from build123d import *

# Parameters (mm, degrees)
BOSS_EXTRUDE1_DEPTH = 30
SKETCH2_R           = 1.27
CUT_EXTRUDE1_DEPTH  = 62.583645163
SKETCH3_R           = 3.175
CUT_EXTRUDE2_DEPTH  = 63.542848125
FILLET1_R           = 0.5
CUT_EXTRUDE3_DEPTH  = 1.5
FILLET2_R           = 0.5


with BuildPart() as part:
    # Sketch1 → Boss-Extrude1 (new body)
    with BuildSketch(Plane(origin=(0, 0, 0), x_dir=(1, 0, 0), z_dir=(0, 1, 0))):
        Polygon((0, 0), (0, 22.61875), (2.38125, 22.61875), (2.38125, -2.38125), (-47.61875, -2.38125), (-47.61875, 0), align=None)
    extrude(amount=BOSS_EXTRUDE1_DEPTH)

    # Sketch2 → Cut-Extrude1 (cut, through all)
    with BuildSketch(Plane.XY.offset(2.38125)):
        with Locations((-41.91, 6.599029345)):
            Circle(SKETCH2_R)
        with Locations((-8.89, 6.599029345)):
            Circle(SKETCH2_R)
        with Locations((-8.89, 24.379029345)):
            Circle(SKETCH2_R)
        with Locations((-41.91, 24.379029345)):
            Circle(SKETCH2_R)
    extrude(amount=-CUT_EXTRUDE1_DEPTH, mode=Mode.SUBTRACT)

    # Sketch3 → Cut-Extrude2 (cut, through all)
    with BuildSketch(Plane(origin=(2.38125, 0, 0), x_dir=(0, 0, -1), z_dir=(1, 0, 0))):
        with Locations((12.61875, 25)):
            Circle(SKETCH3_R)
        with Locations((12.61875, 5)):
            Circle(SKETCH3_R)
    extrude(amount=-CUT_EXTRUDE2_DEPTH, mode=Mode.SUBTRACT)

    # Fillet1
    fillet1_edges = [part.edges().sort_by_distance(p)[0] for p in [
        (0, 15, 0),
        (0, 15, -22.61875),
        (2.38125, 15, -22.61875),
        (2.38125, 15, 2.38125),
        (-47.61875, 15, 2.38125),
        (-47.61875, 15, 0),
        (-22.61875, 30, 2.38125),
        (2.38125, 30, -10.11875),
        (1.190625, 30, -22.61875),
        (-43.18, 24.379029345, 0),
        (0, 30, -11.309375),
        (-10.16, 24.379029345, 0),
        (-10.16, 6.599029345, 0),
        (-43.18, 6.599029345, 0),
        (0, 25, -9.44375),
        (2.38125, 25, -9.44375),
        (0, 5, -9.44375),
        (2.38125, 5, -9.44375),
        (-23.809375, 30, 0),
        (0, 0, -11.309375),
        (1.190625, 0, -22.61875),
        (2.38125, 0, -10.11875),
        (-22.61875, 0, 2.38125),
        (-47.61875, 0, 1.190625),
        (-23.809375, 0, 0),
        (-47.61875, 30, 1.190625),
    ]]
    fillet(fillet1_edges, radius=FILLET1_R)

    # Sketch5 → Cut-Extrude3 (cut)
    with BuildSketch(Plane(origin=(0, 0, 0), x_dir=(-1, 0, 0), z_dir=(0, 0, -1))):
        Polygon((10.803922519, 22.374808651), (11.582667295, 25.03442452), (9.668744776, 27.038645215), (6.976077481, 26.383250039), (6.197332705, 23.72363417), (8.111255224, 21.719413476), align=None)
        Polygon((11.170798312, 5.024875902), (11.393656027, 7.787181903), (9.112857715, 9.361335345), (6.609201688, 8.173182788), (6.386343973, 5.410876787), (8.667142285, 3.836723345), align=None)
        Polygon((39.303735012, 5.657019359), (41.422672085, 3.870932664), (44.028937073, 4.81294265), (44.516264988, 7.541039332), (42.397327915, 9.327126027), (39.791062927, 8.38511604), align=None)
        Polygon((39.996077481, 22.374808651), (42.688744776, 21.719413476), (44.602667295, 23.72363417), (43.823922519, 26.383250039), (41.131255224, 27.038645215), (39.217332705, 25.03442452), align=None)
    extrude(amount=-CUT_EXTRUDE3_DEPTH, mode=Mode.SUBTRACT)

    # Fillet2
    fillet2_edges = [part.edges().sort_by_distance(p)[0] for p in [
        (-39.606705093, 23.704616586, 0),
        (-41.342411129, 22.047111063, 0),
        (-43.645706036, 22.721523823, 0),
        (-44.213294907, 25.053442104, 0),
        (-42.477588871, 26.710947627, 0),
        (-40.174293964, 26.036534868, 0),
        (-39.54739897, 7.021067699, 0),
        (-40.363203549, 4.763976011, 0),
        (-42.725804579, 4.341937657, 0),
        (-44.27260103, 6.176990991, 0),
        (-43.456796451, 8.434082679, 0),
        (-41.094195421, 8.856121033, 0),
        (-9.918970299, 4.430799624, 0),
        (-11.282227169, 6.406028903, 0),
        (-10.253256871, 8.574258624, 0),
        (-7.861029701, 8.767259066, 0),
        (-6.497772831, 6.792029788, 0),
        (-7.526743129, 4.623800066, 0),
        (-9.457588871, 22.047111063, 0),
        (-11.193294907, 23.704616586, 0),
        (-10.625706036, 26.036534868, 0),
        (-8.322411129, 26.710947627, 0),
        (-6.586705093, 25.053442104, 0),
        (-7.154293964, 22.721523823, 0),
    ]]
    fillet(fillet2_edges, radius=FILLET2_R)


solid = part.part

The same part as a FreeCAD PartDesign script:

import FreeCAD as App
import Part
import Sketcher

V = App.Vector


def edges_at(feature, points):
    """Names of the edges that pass closest to the given points."""
    edges = feature.Shape.Edges
    near = lambda p: min(range(len(edges)), key=lambda i: edges[i].distToShape(Part.Vertex(*p))[0])
    return sorted({f"Edge{near(p) + 1}" for p in points})


def add_polygon(sketch, points):
    """Adds a closed chain of lines whose ends are joined by coincident constraints."""
    first, n = sketch.GeometryCount, len(points)
    for a, b in zip(points, points[1:] + points[:1]):
        sketch.addGeometry(Part.LineSegment(App.Vector(*a, 0), App.Vector(*b, 0)), False)
    for i in range(n):
        sketch.addConstraint(Sketcher.Constraint("Coincident", first + i, 2, first + (i + 1) % n, 1))

doc = App.newDocument("Part")
params = doc.addObject("Spreadsheet::Sheet", "Params")
for row, (alias, value) in enumerate([
    ("sketch1_width", "50 mm"),
    ("sketch1_height", "25 mm"),
    ("pad1_length", "30 mm"),
    ("sketch2_diameter", "2.54 mm"),
    ("sketch3_diameter", "6.35 mm"),
    ("fillet_radius", "0.5 mm"),
    ("pocket3_length", "1.5 mm"),
    ("fillet2_radius", "0.5 mm"),
], start=1):
    params.set(f"A{row}", alias)
    params.set(f"B{row}", "=" + value)
    params.setAlias(f"B{row}", alias)

body = doc.addObject("PartDesign::Body", "Body")

sketch1 = doc.addObject("Sketcher::SketchObject", "Sketch")
body.addObject(sketch1)
sketch1.AttachmentSupport = (doc.XZ_Plane, [""])
sketch1.MapMode = "FlatFace"
add_polygon(sketch1, [(0, -22.6), (0, 0), (-47.6, 0), (-47.6, 2.4), (2.4, 2.4), (2.4, -22.6)])
sketch1.addConstraint(Sketcher.Constraint("Vertical", 0))
sketch1.addConstraint(Sketcher.Constraint("Horizontal", 1))
sketch1.addConstraint(Sketcher.Constraint("Vertical", 2))
sketch1.addConstraint(Sketcher.Constraint("Horizontal", 3))
sketch1.addConstraint(Sketcher.Constraint("Vertical", 4))
sketch1.addConstraint(Sketcher.Constraint("Horizontal", 5))
sketch1.addConstraint(Sketcher.Constraint("Coincident", 0, 2, -1, 1))
sketch1.addConstraint(Sketcher.Constraint("Equal", 5, 2))
sketch1.addConstraint(Sketcher.Constraint("DistanceX", 3, 1, 3, 2, 50.0))
sketch1.addConstraint(Sketcher.Constraint("DistanceY", 4, 2, 4, 1, 25.0))
sketch1.addConstraint(Sketcher.Constraint("DistanceX", 1, 2, 1, 1, 47.61875))
sketch1.setExpression("Constraints[14]", "Params.sketch1_width")
sketch1.setExpression("Constraints[15]", "Params.sketch1_height")
pad1 = doc.addObject("PartDesign::Pad", "Pad")
body.addObject(pad1)
pad1.Profile = sketch1
pad1.setExpression("Length", "Params.pad1_length")
pad1.Reversed = True

sketch2 = doc.addObject("Sketcher::SketchObject", "Sketch001")
body.addObject(sketch2)
sketch2.AttachmentSupport = (doc.XY_Plane, [""])
sketch2.MapMode = "FlatFace"
sketch2.AttachmentOffset = App.Placement(V(0, 0, 2.38125), App.Rotation())
sketch2.addGeometry(Part.Circle(V(-41.9, 6.6, 0), V(0, 0, 1), 1.3), False)
sketch2.addGeometry(Part.Circle(V(-8.9, 6.6, 0), V(0, 0, 1), 1.3), False)
sketch2.addGeometry(Part.Circle(V(-8.9, 24.4, 0), V(0, 0, 1), 1.3), False)
sketch2.addGeometry(Part.Circle(V(-41.9, 24.4, 0), V(0, 0, 1), 1.3), False)
sketch2.addConstraint(Sketcher.Constraint("Equal", 0, 1))
sketch2.addConstraint(Sketcher.Constraint("Equal", 1, 2))
sketch2.addConstraint(Sketcher.Constraint("Equal", 2, 3))
sketch2.addConstraint(Sketcher.Constraint("Horizontal", 0, 3, 1, 3))
sketch2.addConstraint(Sketcher.Constraint("Horizontal", 2, 3, 3, 3))
sketch2.addConstraint(Sketcher.Constraint("Vertical", 1, 3, 2, 3))
sketch2.addConstraint(Sketcher.Constraint("Vertical", 0, 3, 3, 3))
sketch2.addConstraint(Sketcher.Constraint("Diameter", 0, 2.54))
sketch2.addConstraint(Sketcher.Constraint("DistanceX", 0, 3, -1, 1, 41.91))
sketch2.addConstraint(Sketcher.Constraint("DistanceX", 1, 3, -1, 1, 8.89))
sketch2.addConstraint(Sketcher.Constraint("DistanceY", 1, 3, 2, 3, 17.78))
sketch2.addConstraint(Sketcher.Constraint("DistanceY", -1, 1, 0, 3, 6.599029))
sketch2.setExpression("Constraints[7]", "Params.sketch2_diameter")
pocket1 = doc.addObject("PartDesign::Pocket", "Pocket")
body.addObject(pocket1)
pocket1.Profile = sketch2
pocket1.Type = "ThroughAll"

sketch3 = doc.addObject("Sketcher::SketchObject", "Sketch002")
body.addObject(sketch3)
sketch3.AttachmentSupport = (doc.YZ_Plane, [""])
sketch3.MapMode = "FlatFace"
sketch3.AttachmentOffset = App.Placement(V(0, 0, 2.38125), App.Rotation())
sketch3.addGeometry(Part.Circle(V(25, -12.6, 0), V(0, 0, 1), 3.2), False)
sketch3.addGeometry(Part.Circle(V(5, -12.6, 0), V(0, 0, 1), 3.2), False)
sketch3.addConstraint(Sketcher.Constraint("Equal", 0, 1))
sketch3.addConstraint(Sketcher.Constraint("Horizontal", 0, 3, 1, 3))
sketch3.addConstraint(Sketcher.Constraint("Diameter", 0, 6.35))
sketch3.addConstraint(Sketcher.Constraint("DistanceX", -1, 1, 0, 3, 25.0))
sketch3.addConstraint(Sketcher.Constraint("DistanceX", -1, 1, 1, 3, 5.0))
sketch3.addConstraint(Sketcher.Constraint("DistanceY", 0, 3, -1, 1, 12.61875))
sketch3.setExpression("Constraints[2]", "Params.sketch3_diameter")
pocket2 = doc.addObject("PartDesign::Pocket", "Pocket001")
body.addObject(pocket2)
pocket2.Profile = sketch3
pocket2.Type = "ThroughAll"
doc.recompute()

fillet = doc.addObject("PartDesign::Fillet", "Fillet")
body.addObject(fillet)
fillet.Base = (pocket2, edges_at(pocket2, [
    (0, 15, 0),
    (0, 15, -22.619),
    (2.381, 15, -22.619),
    (2.381, 15, 2.381),
    (-47.619, 15, 2.381),
    (-47.619, 15, 0),
    (-22.619, 30, 2.381),
    (2.381, 30, -10.119),
    (1.191, 30, -22.619),
    (-43.18, 24.379, 0),
    (0, 30, -11.309),
    (-10.16, 24.379, 0),
    (-10.16, 6.599, 0),
    (-43.18, 6.599, 0),
    (0, 25, -9.444),
    (2.381, 25, -9.444),
    (0, 5, -9.444),
    (2.381, 5, -9.444),
    (-23.809, 30, 0),
    (0, 0, -11.309),
    (1.191, 0, -22.619),
    (2.381, 0, -10.119),
    (-22.619, 0, 2.381),
    (-47.619, 0, 1.191),
    (-23.809, 0, 0),
    (-47.619, 30, 1.191),
]))
fillet.setExpression("Radius", "Params.fillet_radius")

sketch4 = doc.addObject("Sketcher::SketchObject", "Sketch003")
body.addObject(sketch4)
sketch4.AttachmentSupport = (doc.XY_Plane, [""])
sketch4.MapMode = "FlatFace"
add_polygon(sketch4, [(-10.8, 22.4), (-11.6, 25), (-9.7, 27), (-7, 26.4), (-6.2, 23.7), (-8.1, 21.7)])
add_polygon(sketch4, [(-11.2, 5), (-11.4, 7.8), (-9.1, 9.4), (-6.6, 8.2), (-6.4, 5.4), (-8.7, 3.8)])
add_polygon(sketch4, [(-39.3, 5.7), (-41.4, 3.9), (-44, 4.8), (-44.5, 7.5), (-42.4, 9.3), (-39.8, 8.4)])
add_polygon(sketch4, [(-40, 22.4), (-42.7, 21.7), (-44.6, 23.7), (-43.8, 26.4), (-41.1, 27), (-39.2, 25)])
sketch4.addConstraint(Sketcher.Constraint("Parallel", 0, 3))
sketch4.addConstraint(Sketcher.Constraint("Parallel", 1, 4))
sketch4.addConstraint(Sketcher.Constraint("Parallel", 2, 5))
sketch4.addConstraint(Sketcher.Constraint("Parallel", 6, 9))
sketch4.addConstraint(Sketcher.Constraint("Parallel", 7, 10))
sketch4.addConstraint(Sketcher.Constraint("Parallel", 8, 11))
sketch4.addConstraint(Sketcher.Constraint("Parallel", 12, 15))
sketch4.addConstraint(Sketcher.Constraint("Parallel", 13, 16))
sketch4.addConstraint(Sketcher.Constraint("Parallel", 14, 17))
sketch4.addConstraint(Sketcher.Constraint("Parallel", 18, 21))
sketch4.addConstraint(Sketcher.Constraint("Parallel", 19, 22))
sketch4.addConstraint(Sketcher.Constraint("Parallel", 20, 23))
sketch4.addConstraint(Sketcher.Constraint("Horizontal", 4, 2, 18, 2))
sketch4.addConstraint(Sketcher.Constraint("Horizontal", 3, 2, 19, 2))
sketch4.addConstraint(Sketcher.Constraint("Horizontal", 2, 2, 20, 2))
sketch4.addConstraint(Sketcher.Constraint("Horizontal", 1, 2, 21, 2))
sketch4.addConstraint(Sketcher.Constraint("Horizontal", 0, 2, 22, 2))
sketch4.addConstraint(Sketcher.Constraint("Equal", 0, 1))
sketch4.addConstraint(Sketcher.Constraint("Equal", 1, 2))
sketch4.addConstraint(Sketcher.Constraint("Equal", 2, 3))
sketch4.addConstraint(Sketcher.Constraint("Equal", 5, 6))
sketch4.addConstraint(Sketcher.Constraint("Equal", 6, 7))
sketch4.addConstraint(Sketcher.Constraint("Equal", 7, 8))
sketch4.addConstraint(Sketcher.Constraint("Equal", 8, 9))
sketch4.addConstraint(Sketcher.Constraint("Equal", 11, 12))
sketch4.addConstraint(Sketcher.Constraint("Equal", 12, 13))
sketch4.addConstraint(Sketcher.Constraint("Equal", 13, 14))
sketch4.addConstraint(Sketcher.Constraint("Equal", 14, 15))
sketch4.addConstraint(Sketcher.Constraint("Equal", 17, 18))
sketch4.addConstraint(Sketcher.Constraint("Equal", 18, 19))
sketch4.addConstraint(Sketcher.Constraint("Equal", 19, 20))
sketch4.addConstraint(Sketcher.Constraint("DistanceY", 6, 2, 8, 2, 0.386001))
sketch4.addConstraint(Sketcher.Constraint("DistanceX", 8, 2, -1, 1, 6.609202))
sketch4.addConstraint(Sketcher.Constraint("DistanceX", 11, 2, -1, 1, 11.170798))
sketch4.addConstraint(Sketcher.Constraint("DistanceX", 6, 2, 4, 2, 3.282401))
sketch4.addConstraint(Sketcher.Constraint("DistanceX", 6, 2, 7, 2, 2.280798))
sketch4.addConstraint(Sketcher.Constraint("DistanceY", 7, 2, 3, 2, 14.362299))
sketch4.addConstraint(Sketcher.Constraint("DistanceY", 15, 2, 22, 2, 15.707298))
sketch4.addConstraint(Sketcher.Constraint("Distance", 0, 2.771281))
sketch4.addConstraint(Sketcher.Constraint("DistanceY", -1, 1, 2, 2, 26.38325))
sketch4.addConstraint(Sketcher.Constraint("DistanceY", -1, 1, 5, 2, 22.374809))
sketch4.addConstraint(Sketcher.Constraint("DistanceY", -1, 1, 6, 2, 7.787182))
sketch4.addConstraint(Sketcher.Constraint("DistanceY", -1, 1, 14, 2, 7.541039))
sketch4.addConstraint(Sketcher.Constraint("DistanceY", -1, 1, 17, 2, 5.657019))
sketch4.addConstraint(Sketcher.Constraint("DistanceY", 0, 2, 1, 2, 2.004221))
sketch4.addConstraint(Sketcher.Constraint("DistanceX", 12, 2, 10, 2, 32.75553))
sketch4.addConstraint(Sketcher.Constraint("DistanceY", 12, 2, 13, 2, 0.94201))
sketch4.addConstraint(Sketcher.Constraint("DistanceX", 18, 2, 16, 2, 2.897682))
pocket3 = doc.addObject("PartDesign::Pocket", "Pocket002")
body.addObject(pocket3)
pocket3.Profile = sketch4
pocket3.setExpression("Length", "Params.pocket3_length")
pocket3.Reversed = True
doc.recompute()

fillet2 = doc.addObject("PartDesign::Fillet", "Fillet001")
body.addObject(fillet2)
fillet2.Base = (pocket3, edges_at(pocket3, [
    (-39.607, 23.705, 0),
    (-41.342, 22.047, 0),
    (-43.646, 22.722, 0),
    (-44.213, 25.053, 0),
    (-42.478, 26.711, 0),
    (-40.174, 26.037, 0),
    (-39.547, 7.021, 0),
    (-40.363, 4.764, 0),
    (-42.726, 4.342, 0),
    (-44.273, 6.177, 0),
    (-43.457, 8.434, 0),
    (-41.094, 8.856, 0),
    (-9.919, 4.431, 0),
    (-11.282, 6.406, 0),
    (-10.253, 8.574, 0),
    (-7.861, 8.767, 0),
    (-6.498, 6.792, 0),
    (-7.527, 4.624, 0),
    (-9.458, 22.047, 0),
    (-11.193, 23.705, 0),
    (-10.626, 26.037, 0),
    (-8.322, 26.711, 0),
    (-6.587, 25.053, 0),
    (-7.154, 22.722, 0),
]))
fillet2.setExpression("Radius", "Params.fillet2_radius")

doc.recompute()
